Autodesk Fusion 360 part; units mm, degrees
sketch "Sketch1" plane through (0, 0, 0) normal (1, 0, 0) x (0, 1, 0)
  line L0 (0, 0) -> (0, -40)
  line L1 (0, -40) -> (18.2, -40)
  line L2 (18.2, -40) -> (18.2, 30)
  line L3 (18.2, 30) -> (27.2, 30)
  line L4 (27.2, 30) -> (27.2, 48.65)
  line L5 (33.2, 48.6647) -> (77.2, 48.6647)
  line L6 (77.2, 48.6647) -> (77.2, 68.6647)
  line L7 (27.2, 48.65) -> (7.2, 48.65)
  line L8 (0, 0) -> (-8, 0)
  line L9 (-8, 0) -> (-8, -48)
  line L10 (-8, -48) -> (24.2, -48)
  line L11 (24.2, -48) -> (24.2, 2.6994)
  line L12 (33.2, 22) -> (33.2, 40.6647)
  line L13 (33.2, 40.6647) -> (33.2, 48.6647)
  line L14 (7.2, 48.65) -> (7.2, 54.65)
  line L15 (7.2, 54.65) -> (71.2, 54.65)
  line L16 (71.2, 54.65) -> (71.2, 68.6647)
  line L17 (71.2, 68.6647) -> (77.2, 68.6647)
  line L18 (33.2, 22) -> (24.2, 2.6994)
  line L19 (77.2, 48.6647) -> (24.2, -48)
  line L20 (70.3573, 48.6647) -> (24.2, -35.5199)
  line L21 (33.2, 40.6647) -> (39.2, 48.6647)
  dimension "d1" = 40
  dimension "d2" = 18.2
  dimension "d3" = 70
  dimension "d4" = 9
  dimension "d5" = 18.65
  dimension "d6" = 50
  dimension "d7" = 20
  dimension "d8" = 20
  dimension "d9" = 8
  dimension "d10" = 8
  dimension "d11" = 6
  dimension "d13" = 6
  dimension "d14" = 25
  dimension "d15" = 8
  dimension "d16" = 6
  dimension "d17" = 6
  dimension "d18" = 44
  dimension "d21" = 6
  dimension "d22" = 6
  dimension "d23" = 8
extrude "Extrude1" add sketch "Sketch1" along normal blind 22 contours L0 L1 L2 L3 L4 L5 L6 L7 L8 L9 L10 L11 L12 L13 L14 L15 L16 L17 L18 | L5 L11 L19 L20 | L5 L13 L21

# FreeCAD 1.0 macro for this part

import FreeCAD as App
import Part
import Sketcher
from FreeCAD import Vector
Q = App.Units.Quantity

doc = App.newDocument("Part")
body = doc.addObject("PartDesign::Body", "Body")

# Sketch on YZ plane
sketch1 = body.newObject("Sketcher::SketchObject", "Sketch")
sketch1.AttachmentSupport = (doc.getObject("YZ_Plane"), [""])
sketch1.MapMode = "FlatFace"
sketch1.addGeometry([
    Part.LineSegment(Vector(0, -40, 0), Vector(0, 0, 0)),  # 0
    Part.LineSegment(Vector(0, 0, 0), Vector(-8, 0, 0)),  # 1
    Part.LineSegment(Vector(-8, 0, 0), Vector(-8, -48, 0)),  # 2
    Part.LineSegment(Vector(-8, -48, 0), Vector(24, -48, 0)),  # 3
    Part.LineSegment(Vector(24, -48, 0), Vector(77, 49, 0)),  # 4
    Part.LineSegment(Vector(77, 49, 0), Vector(77, 69, 0)),  # 5
    Part.LineSegment(Vector(77, 69, 0), Vector(71, 69, 0)),  # 6
    Part.LineSegment(Vector(71, 69, 0), Vector(71, 55, 0)),  # 7
    Part.LineSegment(Vector(71, 55, 0), Vector(7, 55, 0)),  # 8
    Part.LineSegment(Vector(7, 55, 0), Vector(7, 49, 0)),  # 9
    Part.LineSegment(Vector(7, 49, 0), Vector(27, 49, 0)),  # 10
    Part.LineSegment(Vector(27, 49, 0), Vector(27, 30, 0)),  # 11
    Part.LineSegment(Vector(27, 30, 0), Vector(18, 30, 0)),  # 12
    Part.LineSegment(Vector(18, 30, 0), Vector(18, -40, 0)),  # 13
    Part.LineSegment(Vector(18, -40, 0), Vector(0, -40, 0)),  # 14
    Part.LineSegment(Vector(39, 49, 0), Vector(70, 49, 0)),  # 15
    Part.LineSegment(Vector(70, 49, 0), Vector(24, -36, 0)),  # 16
    Part.LineSegment(Vector(24, -36, 0), Vector(24, 3, 0)),  # 17
    Part.LineSegment(Vector(24, 3, 0), Vector(33, 22, 0)),  # 18
    Part.LineSegment(Vector(33, 22, 0), Vector(33, 41, 0)),  # 19
    Part.LineSegment(Vector(33, 41, 0), Vector(39, 49, 0)),  # 20
], False)
sketch1.addConstraint([
    Sketcher.Constraint("Coincident", 0, 2, 1, 1),
    Sketcher.Constraint("Coincident", 1, 2, 2, 1),
    Sketcher.Constraint("Coincident", 2, 2, 3, 1),
    Sketcher.Constraint("Coincident", 3, 2, 4, 1),
    Sketcher.Constraint("Coincident", 4, 2, 5, 1),
    Sketcher.Constraint("Coincident", 5, 2, 6, 1),
    Sketcher.Constraint("Coincident", 6, 2, 7, 1),
    Sketcher.Constraint("Coincident", 7, 2, 8, 1),
    Sketcher.Constraint("Coincident", 8, 2, 9, 1),
    Sketcher.Constraint("Coincident", 9, 2, 10, 1),
    Sketcher.Constraint("Coincident", 10, 2, 11, 1),
    Sketcher.Constraint("Coincident", 11, 2, 12, 1),
    Sketcher.Constraint("Coincident", 12, 2, 13, 1),
    Sketcher.Constraint("Coincident", 13, 2, 14, 1),
    Sketcher.Constraint("Coincident", 14, 2, 0, 1),
    Sketcher.Constraint("Coincident", 15, 2, 16, 1),
    Sketcher.Constraint("Coincident", 16, 2, 17, 1),
    Sketcher.Constraint("Coincident", 17, 2, 18, 1),
    Sketcher.Constraint("Coincident", 18, 2, 19, 1),
    Sketcher.Constraint("Coincident", 19, 2, 20, 1),
    Sketcher.Constraint("Coincident", 20, 2, 15, 1),
    Sketcher.Constraint("Vertical", 0),
    Sketcher.Constraint("Horizontal", 1),
    Sketcher.Constraint("Vertical", 2),
    Sketcher.Constraint("Horizontal", 3),
    Sketcher.Constraint("Vertical", 5),
    Sketcher.Constraint("Horizontal", 6),
    Sketcher.Constraint("Vertical", 7),
    Sketcher.Constraint("Horizontal", 8),
    Sketcher.Constraint("Vertical", 9),
    Sketcher.Constraint("Horizontal", 10),
    Sketcher.Constraint("Vertical", 11),
    Sketcher.Constraint("Horizontal", 12),
    Sketcher.Constraint("Vertical", 13),
    Sketcher.Constraint("Horizontal", 14),
    Sketcher.Constraint("Horizontal", 15),
    Sketcher.Constraint("Vertical", 17),
    Sketcher.Constraint("Vertical", 19),
    Sketcher.Constraint("Coincident", 0, 2, -1, 1),
    Sketcher.Constraint("Parallel", 4, 16),
    Sketcher.Constraint("Horizontal", 4, 2, 15, 2),
    Sketcher.Constraint("Vertical", 3, 2, 16, 2),
    Sketcher.Constraint("Equal", 10, 5),
    Sketcher.Constraint("Equal", 6, 9),
    Sketcher.Constraint("DistanceX", 1, 2, 1, 1, 8.0),
    Sketcher.Constraint("DistanceX", 6, 2, 6, 1, 6.0),
    Sketcher.Constraint("DistanceX", 10, 1, 10, 2, 20.0),
    Sketcher.Constraint("DistanceX", 12, 2, 12, 1, 9.0),
    Sketcher.Constraint("DistanceY", 0, 1, 0, 2, 40.0),
    Sketcher.Constraint("DistanceY", 13, 2, 13, 1, 70.0),
    Sketcher.Constraint("DistanceX", 14, 2, 14, 1, 18.2),
    Sketcher.Constraint("DistanceX", 8, 2, 4, 2, 70.0),
    Sketcher.Constraint("DistanceX", 13, 2, 3, 2, 6.0),
    Sketcher.Constraint("DistanceY", 3, 2, 13, 2, 8.0),
    Sketcher.Constraint("DistanceX", 11, 2, 18, 2, 6.0),
    Sketcher.Constraint("DistanceY", 18, 2, 11, 2, 8.0),
    Sketcher.Constraint("DistanceX", 19, 2, 20, 2, 6.0),
    Sketcher.Constraint("DistanceY", 19, 2, 20, 2, 8.0),
    Sketcher.Constraint("DistanceY", 11, 2, 11, 1, 18.65),
    Sketcher.Constraint("Angle", 18, Q("65 deg")),
    Sketcher.Constraint("DistanceY", 16, 2, -1, 1, 35.52),
    Sketcher.Constraint("Distance", 4, 110.241),
])
pad1 = body.newObject("PartDesign::Pad", "Pad")
pad1.Profile = sketch1
pad1.Length = 22

doc.recompute()
